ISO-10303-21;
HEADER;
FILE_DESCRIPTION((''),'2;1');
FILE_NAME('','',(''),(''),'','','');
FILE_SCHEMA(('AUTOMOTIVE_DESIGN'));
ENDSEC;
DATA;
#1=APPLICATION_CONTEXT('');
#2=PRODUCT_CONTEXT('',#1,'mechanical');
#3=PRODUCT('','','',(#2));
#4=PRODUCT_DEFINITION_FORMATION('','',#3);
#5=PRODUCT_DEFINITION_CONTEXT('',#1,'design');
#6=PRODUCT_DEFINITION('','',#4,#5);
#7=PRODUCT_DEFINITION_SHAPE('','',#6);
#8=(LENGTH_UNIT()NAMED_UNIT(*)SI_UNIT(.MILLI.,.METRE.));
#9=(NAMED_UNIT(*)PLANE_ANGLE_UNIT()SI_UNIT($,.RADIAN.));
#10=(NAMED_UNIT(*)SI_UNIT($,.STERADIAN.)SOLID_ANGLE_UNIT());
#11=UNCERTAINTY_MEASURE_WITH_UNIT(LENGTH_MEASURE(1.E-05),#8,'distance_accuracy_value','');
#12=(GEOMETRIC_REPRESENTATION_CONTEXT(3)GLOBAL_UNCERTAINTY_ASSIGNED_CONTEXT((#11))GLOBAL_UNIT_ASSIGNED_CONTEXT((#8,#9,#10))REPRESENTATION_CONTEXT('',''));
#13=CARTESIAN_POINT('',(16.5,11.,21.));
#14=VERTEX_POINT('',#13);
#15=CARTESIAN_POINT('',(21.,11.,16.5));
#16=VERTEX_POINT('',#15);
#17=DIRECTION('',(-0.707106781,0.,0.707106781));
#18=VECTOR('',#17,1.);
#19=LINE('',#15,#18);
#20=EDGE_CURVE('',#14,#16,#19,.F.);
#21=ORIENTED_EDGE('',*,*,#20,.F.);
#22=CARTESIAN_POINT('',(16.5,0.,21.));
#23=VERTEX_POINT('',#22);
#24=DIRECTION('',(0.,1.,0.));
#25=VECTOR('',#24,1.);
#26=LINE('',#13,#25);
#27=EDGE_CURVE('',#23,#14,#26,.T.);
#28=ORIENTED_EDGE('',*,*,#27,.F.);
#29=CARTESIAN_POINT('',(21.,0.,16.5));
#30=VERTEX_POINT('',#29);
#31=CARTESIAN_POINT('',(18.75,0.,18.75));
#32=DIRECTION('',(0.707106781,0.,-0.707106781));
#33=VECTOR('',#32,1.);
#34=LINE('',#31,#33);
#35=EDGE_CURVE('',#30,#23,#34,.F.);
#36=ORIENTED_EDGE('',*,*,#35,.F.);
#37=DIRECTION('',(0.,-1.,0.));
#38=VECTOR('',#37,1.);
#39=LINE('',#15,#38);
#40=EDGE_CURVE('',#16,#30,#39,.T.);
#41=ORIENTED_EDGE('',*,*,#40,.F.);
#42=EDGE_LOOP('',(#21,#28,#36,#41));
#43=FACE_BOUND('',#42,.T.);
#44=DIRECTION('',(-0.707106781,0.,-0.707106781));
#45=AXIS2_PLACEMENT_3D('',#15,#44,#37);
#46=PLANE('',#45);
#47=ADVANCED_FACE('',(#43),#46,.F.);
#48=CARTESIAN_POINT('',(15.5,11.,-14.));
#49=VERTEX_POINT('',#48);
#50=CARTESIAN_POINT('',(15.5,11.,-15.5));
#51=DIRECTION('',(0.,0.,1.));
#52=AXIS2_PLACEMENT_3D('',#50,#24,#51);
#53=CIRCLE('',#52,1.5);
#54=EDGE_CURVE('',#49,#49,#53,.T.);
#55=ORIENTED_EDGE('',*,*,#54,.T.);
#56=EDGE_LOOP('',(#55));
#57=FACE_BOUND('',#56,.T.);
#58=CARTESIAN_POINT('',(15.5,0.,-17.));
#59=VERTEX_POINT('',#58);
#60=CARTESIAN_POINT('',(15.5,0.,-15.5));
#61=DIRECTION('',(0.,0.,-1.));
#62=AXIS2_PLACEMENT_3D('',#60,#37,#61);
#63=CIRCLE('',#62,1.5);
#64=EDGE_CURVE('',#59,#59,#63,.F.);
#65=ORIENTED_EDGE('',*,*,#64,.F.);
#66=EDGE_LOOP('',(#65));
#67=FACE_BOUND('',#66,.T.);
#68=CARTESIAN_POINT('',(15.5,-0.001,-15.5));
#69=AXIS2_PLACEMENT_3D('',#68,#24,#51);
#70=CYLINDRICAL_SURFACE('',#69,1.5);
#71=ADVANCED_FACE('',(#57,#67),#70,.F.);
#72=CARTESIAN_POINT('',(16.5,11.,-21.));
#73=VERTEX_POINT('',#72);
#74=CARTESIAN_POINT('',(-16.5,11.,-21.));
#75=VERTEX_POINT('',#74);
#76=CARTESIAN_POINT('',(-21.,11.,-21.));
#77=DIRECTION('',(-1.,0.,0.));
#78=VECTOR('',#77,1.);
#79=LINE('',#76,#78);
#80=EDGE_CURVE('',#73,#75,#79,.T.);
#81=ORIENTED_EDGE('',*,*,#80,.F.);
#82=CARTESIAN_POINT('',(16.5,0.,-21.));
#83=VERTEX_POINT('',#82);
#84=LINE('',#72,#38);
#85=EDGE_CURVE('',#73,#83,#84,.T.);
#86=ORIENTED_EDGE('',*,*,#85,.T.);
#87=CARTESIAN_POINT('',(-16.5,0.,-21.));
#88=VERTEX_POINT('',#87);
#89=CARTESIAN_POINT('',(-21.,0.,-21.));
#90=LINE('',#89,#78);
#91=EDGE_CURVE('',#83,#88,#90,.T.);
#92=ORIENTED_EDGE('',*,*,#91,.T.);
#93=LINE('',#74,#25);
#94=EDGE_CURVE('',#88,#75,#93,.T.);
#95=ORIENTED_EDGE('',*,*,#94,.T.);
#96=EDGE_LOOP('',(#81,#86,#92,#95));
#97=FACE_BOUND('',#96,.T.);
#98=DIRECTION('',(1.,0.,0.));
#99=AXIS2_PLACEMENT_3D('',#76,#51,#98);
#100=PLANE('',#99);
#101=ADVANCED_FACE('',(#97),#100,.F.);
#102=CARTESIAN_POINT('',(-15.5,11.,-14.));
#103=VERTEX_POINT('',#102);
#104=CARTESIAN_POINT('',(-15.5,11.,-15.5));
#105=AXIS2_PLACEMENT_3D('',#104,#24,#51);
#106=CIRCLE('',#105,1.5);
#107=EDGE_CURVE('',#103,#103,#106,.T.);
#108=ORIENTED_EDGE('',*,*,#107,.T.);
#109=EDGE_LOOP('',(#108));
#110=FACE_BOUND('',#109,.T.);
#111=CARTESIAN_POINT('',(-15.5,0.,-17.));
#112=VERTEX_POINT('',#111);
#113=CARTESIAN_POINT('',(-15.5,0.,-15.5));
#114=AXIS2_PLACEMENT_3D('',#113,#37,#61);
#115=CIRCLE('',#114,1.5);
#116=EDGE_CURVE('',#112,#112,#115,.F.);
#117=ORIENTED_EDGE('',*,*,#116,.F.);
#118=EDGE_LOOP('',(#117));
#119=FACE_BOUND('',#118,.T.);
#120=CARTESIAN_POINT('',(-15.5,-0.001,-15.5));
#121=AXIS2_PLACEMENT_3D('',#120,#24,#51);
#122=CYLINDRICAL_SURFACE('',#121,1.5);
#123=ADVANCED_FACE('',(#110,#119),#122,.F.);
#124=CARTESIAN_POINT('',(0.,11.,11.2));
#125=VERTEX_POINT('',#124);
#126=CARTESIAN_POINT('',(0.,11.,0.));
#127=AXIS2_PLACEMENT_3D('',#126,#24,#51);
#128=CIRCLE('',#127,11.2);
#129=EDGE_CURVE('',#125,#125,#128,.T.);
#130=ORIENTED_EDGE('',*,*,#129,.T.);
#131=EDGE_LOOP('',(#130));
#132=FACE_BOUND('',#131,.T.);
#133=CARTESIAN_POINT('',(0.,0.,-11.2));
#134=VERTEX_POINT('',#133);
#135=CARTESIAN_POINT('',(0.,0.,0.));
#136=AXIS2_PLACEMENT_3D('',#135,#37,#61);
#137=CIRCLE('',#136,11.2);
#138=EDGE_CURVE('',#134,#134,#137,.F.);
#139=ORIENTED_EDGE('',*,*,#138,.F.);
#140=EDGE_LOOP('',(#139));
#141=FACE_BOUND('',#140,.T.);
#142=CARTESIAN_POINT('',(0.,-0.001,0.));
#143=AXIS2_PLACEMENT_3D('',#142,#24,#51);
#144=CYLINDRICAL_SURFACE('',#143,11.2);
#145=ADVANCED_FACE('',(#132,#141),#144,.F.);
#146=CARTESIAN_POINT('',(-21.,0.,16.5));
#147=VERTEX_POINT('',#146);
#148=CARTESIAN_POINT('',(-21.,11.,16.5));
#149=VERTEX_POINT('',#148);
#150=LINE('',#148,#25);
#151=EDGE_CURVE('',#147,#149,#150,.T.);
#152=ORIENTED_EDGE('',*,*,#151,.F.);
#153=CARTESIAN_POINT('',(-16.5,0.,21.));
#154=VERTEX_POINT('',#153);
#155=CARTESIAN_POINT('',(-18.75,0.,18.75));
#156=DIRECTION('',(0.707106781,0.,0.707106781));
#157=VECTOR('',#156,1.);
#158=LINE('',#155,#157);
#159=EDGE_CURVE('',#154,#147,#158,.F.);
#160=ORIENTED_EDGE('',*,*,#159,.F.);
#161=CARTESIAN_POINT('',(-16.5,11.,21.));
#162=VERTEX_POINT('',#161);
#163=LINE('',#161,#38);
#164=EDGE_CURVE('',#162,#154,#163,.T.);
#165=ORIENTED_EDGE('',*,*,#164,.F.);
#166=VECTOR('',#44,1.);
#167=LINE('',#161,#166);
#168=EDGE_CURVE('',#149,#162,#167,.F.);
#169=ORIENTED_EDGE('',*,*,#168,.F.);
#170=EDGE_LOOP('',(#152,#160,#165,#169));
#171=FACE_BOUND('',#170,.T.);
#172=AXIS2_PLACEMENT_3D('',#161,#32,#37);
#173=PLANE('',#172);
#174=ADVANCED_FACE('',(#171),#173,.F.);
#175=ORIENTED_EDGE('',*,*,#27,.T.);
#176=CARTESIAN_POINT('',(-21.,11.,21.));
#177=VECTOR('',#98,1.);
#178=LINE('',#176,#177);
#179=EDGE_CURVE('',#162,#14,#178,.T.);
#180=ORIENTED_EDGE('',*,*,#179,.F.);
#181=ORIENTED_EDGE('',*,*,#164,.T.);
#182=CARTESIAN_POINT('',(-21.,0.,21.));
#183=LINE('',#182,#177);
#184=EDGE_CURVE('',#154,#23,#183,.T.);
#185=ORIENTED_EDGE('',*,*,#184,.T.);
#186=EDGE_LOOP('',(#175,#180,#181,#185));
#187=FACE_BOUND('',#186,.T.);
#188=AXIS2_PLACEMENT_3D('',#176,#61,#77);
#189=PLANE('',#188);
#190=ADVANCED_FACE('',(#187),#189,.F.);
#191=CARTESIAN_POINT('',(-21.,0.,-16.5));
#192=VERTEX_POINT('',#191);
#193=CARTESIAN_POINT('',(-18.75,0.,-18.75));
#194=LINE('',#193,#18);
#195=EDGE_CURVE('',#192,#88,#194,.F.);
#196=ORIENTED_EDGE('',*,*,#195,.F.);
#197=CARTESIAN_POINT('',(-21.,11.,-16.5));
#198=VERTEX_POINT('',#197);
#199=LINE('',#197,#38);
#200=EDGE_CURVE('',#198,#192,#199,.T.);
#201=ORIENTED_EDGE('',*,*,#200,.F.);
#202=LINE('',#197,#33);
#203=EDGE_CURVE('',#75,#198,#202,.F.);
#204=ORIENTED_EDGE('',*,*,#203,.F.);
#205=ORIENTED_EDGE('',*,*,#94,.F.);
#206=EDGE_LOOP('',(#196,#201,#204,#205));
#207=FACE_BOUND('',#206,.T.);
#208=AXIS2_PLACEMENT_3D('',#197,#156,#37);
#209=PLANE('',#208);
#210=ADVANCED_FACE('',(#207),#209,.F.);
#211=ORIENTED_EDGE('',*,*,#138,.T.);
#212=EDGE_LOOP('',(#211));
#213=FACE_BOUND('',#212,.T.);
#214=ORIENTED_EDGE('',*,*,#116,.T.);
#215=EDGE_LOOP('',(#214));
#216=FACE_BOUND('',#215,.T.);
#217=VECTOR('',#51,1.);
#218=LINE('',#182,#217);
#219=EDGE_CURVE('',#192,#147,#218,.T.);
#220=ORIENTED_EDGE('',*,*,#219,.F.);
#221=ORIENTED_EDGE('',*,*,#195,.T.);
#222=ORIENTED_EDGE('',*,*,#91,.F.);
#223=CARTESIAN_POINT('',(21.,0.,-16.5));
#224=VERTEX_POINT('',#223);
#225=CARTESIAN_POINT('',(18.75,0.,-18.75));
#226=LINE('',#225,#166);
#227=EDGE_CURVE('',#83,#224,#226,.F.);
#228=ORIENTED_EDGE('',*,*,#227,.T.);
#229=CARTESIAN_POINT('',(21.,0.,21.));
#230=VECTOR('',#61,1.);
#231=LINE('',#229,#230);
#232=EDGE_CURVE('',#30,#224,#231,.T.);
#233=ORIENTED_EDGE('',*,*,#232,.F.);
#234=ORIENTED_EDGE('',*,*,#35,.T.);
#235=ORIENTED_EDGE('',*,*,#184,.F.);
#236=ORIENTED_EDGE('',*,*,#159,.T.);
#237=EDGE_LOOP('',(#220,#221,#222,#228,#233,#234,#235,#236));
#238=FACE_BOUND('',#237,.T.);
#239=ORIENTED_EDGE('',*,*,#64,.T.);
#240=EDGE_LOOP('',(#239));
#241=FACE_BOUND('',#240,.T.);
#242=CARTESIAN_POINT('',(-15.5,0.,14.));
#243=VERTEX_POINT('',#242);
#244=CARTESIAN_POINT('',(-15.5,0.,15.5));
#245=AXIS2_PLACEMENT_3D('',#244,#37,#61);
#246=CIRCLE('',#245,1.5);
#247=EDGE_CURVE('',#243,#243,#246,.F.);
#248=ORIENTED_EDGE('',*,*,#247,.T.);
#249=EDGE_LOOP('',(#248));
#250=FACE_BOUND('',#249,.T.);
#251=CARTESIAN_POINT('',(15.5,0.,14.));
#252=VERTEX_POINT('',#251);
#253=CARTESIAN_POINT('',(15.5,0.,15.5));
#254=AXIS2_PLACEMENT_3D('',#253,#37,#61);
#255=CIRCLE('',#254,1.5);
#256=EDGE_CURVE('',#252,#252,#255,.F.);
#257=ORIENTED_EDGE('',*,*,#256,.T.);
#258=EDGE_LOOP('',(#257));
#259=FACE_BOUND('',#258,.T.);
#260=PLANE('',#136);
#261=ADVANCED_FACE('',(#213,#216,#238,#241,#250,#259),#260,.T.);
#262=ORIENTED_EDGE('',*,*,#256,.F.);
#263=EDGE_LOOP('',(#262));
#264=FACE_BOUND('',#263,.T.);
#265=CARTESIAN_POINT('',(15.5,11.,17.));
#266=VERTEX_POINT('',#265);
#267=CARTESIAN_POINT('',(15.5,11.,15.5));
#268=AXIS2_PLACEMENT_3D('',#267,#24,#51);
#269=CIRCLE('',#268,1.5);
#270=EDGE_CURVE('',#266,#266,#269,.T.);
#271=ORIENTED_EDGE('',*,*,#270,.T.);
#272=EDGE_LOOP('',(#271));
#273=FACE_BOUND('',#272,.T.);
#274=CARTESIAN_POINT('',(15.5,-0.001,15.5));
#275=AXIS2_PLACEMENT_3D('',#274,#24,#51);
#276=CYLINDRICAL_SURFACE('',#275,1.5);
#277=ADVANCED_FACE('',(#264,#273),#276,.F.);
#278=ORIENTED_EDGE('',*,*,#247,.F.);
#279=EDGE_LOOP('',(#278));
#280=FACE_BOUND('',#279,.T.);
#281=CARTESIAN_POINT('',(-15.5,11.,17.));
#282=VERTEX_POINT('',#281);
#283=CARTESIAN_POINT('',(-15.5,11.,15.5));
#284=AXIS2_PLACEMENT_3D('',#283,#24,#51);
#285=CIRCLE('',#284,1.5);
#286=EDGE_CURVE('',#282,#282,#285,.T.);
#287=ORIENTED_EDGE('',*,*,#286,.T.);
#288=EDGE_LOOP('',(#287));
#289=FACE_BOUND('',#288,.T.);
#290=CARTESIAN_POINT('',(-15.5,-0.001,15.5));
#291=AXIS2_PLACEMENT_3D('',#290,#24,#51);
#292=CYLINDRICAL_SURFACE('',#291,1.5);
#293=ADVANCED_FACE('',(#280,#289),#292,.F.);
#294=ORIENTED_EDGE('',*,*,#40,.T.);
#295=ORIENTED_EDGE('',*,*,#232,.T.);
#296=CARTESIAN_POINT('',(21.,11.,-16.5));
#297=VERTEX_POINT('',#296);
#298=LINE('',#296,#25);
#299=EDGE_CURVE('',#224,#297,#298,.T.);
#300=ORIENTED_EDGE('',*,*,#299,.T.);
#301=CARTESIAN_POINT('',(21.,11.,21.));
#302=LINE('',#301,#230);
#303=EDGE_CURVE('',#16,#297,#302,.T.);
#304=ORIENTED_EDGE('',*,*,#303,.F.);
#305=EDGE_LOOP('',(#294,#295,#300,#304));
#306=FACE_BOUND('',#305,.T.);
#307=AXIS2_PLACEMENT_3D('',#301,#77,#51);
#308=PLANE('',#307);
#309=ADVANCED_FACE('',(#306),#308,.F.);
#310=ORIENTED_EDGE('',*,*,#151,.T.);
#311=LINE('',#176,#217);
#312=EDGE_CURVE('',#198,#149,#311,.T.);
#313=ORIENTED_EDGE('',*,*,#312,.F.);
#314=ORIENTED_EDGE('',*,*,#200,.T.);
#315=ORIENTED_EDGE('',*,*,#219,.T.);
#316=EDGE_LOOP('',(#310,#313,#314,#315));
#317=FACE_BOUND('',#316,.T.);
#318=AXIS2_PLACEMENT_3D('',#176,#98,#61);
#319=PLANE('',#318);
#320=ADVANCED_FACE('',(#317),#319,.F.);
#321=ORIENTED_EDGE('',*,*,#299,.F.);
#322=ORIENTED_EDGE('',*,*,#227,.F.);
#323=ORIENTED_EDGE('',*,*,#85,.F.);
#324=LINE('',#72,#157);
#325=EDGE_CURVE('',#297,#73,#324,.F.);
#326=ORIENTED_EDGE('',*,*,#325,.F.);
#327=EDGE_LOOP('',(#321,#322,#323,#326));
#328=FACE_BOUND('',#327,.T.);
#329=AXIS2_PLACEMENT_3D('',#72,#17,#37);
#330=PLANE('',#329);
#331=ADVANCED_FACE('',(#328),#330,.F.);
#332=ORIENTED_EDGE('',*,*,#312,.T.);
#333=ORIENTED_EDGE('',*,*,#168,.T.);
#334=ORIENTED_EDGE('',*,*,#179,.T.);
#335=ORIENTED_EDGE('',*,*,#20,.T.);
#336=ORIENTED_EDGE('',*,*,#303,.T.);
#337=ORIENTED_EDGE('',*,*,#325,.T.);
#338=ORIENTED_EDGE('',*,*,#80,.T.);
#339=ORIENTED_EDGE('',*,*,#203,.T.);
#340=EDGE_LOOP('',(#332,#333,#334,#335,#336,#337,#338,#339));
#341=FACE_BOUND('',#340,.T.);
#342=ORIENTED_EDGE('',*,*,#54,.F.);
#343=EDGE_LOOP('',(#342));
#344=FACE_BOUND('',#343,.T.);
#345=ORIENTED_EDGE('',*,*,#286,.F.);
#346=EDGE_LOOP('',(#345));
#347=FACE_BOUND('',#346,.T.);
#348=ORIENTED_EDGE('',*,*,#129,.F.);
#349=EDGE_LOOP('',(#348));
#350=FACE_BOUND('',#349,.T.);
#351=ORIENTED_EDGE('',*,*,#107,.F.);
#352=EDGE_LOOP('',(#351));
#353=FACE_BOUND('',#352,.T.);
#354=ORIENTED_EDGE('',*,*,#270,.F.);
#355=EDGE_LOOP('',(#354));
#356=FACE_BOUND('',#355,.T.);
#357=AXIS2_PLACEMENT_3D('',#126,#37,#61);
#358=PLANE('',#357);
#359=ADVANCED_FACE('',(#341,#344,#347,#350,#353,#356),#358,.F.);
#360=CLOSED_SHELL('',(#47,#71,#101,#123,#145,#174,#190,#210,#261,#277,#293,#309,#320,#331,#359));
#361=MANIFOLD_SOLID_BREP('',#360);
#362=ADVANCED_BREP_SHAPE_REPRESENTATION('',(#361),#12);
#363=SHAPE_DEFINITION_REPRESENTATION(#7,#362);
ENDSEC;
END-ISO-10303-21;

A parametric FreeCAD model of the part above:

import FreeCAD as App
import Part
import Sketcher


def edges_at(feature, points):
    """Names of the edges that pass closest to the given points."""
    edges = feature.Shape.Edges
    near = lambda p: min(range(len(edges)), key=lambda i: edges[i].distToShape(Part.Vertex(*p))[0])
    return sorted({f"Edge{near(p) + 1}" for p in points})


def add_polygon(sketch, points):
    """Adds a closed chain of lines whose ends are joined by coincident constraints."""
    first, n = sketch.GeometryCount, len(points)
    for a, b in zip(points, points[1:] + points[:1]):
        sketch.addGeometry(Part.LineSegment(App.Vector(*a, 0), App.Vector(*b, 0)), False)
    for i in range(n):
        sketch.addConstraint(Sketcher.Constraint("Coincident", first + i, 2, first + (i + 1) % n, 1))

doc = App.newDocument("Part")
body = doc.addObject("PartDesign::Body", "Body")

# Sketch on XZ plane
sketch1 = doc.addObject("Sketcher::SketchObject", "Sketch")
body.addObject(sketch1)
sketch1.AttachmentSupport = (doc.XZ_Plane, [""])
sketch1.MapMode = "FlatFace"
add_polygon(sketch1, [(-21, -21), (-21, 21), (21, 21), (21, -21)])  # lines 0-3
sketch1.addConstraint([
    Sketcher.Constraint("Vertical", 0),
    Sketcher.Constraint("Horizontal", 1),
    Sketcher.Constraint("Vertical", 2),
    Sketcher.Constraint("Horizontal", 3),
    Sketcher.Constraint("Symmetric", 0, 2, 2, 2, -1, 1),
    Sketcher.Constraint("Equal", 3, 0),
    Sketcher.Constraint("DistanceX", 1, 1, 1, 2, 42.0),
])
pad1 = doc.addObject("PartDesign::Pad", "Pad")
body.addObject(pad1)
pad1.Profile = sketch1
pad1.Length = 11
pad1.Reversed = True
doc.recompute()

chamfer = doc.addObject("PartDesign::Chamfer", "Chamfer")
body.addObject(chamfer)
chamfer.Base = (pad1, edges_at(pad1, [
    (21, 5.5, 21),
    (-21, 5.5, 21),
    (-21, 5.5, -21),
    (21, 5.5, -21),
]))
chamfer.Size = 4.5

# Sketch on XZ plane
sketch2 = doc.addObject("Sketcher::SketchObject", "Sketch001")
body.addObject(sketch2)
sketch2.AttachmentSupport = (doc.XZ_Plane, [""])
sketch2.MapMode = "FlatFace"
sketch2.AttachmentOffset = App.Placement(App.Vector(0, 0, -11), App.Rotation())
sketch2.addGeometry(Part.Circle(App.Vector(-15.5, -15.5, 0), App.Vector(0, 0, 1), 1.5), False)
sketch2.addConstraint([
    Sketcher.Constraint("Diameter", 0, 3.0),
    Sketcher.Constraint("DistanceX", 0, 3, -1, 1, 15.5),
    Sketcher.Constraint("DistanceY", 0, 3, -1, 1, 15.5),
])
pocket1 = doc.addObject("PartDesign::Pocket", "Pocket")
body.addObject(pocket1)
pocket1.Profile = sketch2
pocket1.Type = "UpToFirst"
pocket1.Reversed = True

# Sketch on XZ plane
sketch3 = doc.addObject("Sketcher::SketchObject", "Sketch002")
body.addObject(sketch3)
sketch3.AttachmentSupport = (doc.XZ_Plane, [""])
sketch3.MapMode = "FlatFace"
sketch3.AttachmentOffset = App.Placement(App.Vector(0, 0, -11), App.Rotation())
sketch3.addGeometry(Part.Circle(App.Vector(15.5, -15.5, 0), App.Vector(0, 0, 1), 1.5), False)
sketch3.addConstraint([
    Sketcher.Constraint("Diameter", 0, 3.0),
    Sketcher.Constraint("DistanceX", -1, 1, 0, 3, 15.5),
    Sketcher.Constraint("DistanceY", 0, 3, -1, 1, 15.5),
])
pocket2 = doc.addObject("PartDesign::Pocket", "Pocket001")
body.addObject(pocket2)
pocket2.Profile = sketch3
pocket2.Type = "UpToFirst"
pocket2.Reversed = True

# Sketch on XZ plane
sketch4 = doc.addObject("Sketcher::SketchObject", "Sketch003")
body.addObject(sketch4)
sketch4.AttachmentSupport = (doc.XZ_Plane, [""])
sketch4.MapMode = "FlatFace"
sketch4.AttachmentOffset = App.Placement(App.Vector(0, 0, -11), App.Rotation())
sketch4.addGeometry(Part.Circle(App.Vector(15.5, 15.5, 0), App.Vector(0, 0, 1), 1.5), False)
sketch4.addConstraint([
    Sketcher.Constraint("Diameter", 0, 3.0),
    Sketcher.Constraint("DistanceX", -1, 1, 0, 3, 15.5),
    Sketcher.Constraint("DistanceY", -1, 1, 0, 3, 15.5),
])
pocket3 = doc.addObject("PartDesign::Pocket", "Pocket002")
body.addObject(pocket3)
pocket3.Profile = sketch4
pocket3.Type = "UpToFirst"
pocket3.Reversed = True

# Sketch on XZ plane
sketch5 = doc.addObject("Sketcher::SketchObject", "Sketch004")
body.addObject(sketch5)
sketch5.AttachmentSupport = (doc.XZ_Plane, [""])
sketch5.MapMode = "FlatFace"
sketch5.AttachmentOffset = App.Placement(App.Vector(0, 0, -11), App.Rotation())
sketch5.addGeometry(Part.Circle(App.Vector(-15.5, 15.5, 0), App.Vector(0, 0, 1), 1.5), False)
sketch5.addConstraint([
    Sketcher.Constraint("Diameter", 0, 3.0),
    Sketcher.Constraint("DistanceX", 0, 3, -1, 1, 15.5),
    Sketcher.Constraint("DistanceY", -1, 1, 0, 3, 15.5),
])
pocket4 = doc.addObject("PartDesign::Pocket", "Pocket003")
body.addObject(pocket4)
pocket4.Profile = sketch5
pocket4.Type = "UpToFirst"
pocket4.Reversed = True

# Sketch on XZ plane
sketch6 = doc.addObject("Sketcher::SketchObject", "Sketch005")
body.addObject(sketch6)
sketch6.AttachmentSupport = (doc.XZ_Plane, [""])
sketch6.MapMode = "FlatFace"
sketch6.AttachmentOffset = App.Placement(App.Vector(0, 0, -11), App.Rotation())
sketch6.addGeometry(Part.Circle(App.Vector(0, 0, 0), App.Vector(0, 0, 1), 11), False)
sketch6.addConstraint([
    Sketcher.Constraint("Coincident", 0, 3, -1, 1),
    Sketcher.Constraint("Diameter", 0, 22.4),
])
pocket5 = doc.addObject("PartDesign::Pocket", "Pocket004")
body.addObject(pocket5)
pocket5.Profile = sketch6
pocket5.Type = "UpToFirst"
pocket5.Reversed = True

doc.recompute()
